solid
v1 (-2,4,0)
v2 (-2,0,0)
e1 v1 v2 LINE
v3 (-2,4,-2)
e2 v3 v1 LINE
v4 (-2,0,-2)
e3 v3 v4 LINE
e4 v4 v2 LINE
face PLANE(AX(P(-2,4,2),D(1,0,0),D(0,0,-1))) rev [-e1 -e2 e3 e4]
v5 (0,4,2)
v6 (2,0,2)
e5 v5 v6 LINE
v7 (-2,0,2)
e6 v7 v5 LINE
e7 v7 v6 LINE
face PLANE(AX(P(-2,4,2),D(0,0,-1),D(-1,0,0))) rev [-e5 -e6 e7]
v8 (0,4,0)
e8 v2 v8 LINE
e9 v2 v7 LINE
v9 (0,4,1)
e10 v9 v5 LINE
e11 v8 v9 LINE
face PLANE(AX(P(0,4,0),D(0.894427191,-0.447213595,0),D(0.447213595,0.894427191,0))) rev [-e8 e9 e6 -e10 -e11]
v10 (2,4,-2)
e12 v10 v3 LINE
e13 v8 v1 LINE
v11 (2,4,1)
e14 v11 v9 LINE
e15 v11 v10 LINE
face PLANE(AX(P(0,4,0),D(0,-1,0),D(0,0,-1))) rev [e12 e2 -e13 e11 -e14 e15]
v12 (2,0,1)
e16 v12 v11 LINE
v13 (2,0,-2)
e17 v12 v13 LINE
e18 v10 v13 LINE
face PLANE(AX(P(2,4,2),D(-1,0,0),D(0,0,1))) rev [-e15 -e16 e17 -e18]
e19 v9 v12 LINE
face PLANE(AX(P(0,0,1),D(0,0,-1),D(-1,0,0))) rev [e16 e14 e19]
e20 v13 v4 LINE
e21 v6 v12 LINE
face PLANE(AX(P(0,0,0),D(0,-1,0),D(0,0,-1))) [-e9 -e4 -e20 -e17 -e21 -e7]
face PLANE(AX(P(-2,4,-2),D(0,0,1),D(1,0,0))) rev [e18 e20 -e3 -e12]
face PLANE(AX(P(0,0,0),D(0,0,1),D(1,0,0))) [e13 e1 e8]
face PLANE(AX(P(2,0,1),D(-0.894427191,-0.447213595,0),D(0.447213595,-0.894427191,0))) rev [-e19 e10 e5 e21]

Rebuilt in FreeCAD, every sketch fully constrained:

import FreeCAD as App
import Part
import Sketcher

V = App.Vector
Q = App.Units.Quantity


def add_polygon(sketch, points):
    """Adds a closed chain of lines whose ends are joined by coincident constraints."""
    first, n = sketch.GeometryCount, len(points)
    for a, b in zip(points, points[1:] + points[:1]):
        sketch.addGeometry(Part.LineSegment(App.Vector(*a, 0), App.Vector(*b, 0)), False)
    for i in range(n):
        sketch.addConstraint(Sketcher.Constraint("Coincident", first + i, 2, first + (i + 1) % n, 1))

doc = App.newDocument("Part")
body = doc.addObject("PartDesign::Body", "Body")

# Sketch on XZ plane
sketch1 = body.newObject("Sketcher::SketchObject", "Sketch")
sketch1.AttachmentSupport = (doc.getObject("XZ_Plane"), [""])
sketch1.MapMode = "FlatFace"
add_polygon(sketch1, [(-2, -2), (-2, 2), (2, 2), (2, -2)])  # lines 0-3
sketch1.addConstraint(Sketcher.Constraint("Vertical", 0))
sketch1.addConstraint(Sketcher.Constraint("Horizontal", 1))
sketch1.addConstraint(Sketcher.Constraint("Vertical", 2))
sketch1.addConstraint(Sketcher.Constraint("Horizontal", 3))
sketch1.addConstraint(Sketcher.Constraint("Symmetric", 0, 2, 2, 2, -1, 1))
sketch1.addConstraint(Sketcher.Constraint("Equal", 3, 0))
sketch1.addConstraint(Sketcher.Constraint("DistanceX", 1, 1, 1, 2, Q("4 mm")))
pad1 = body.newObject("PartDesign::Pad", "Pad")
pad1.Profile = sketch1
pad1.Length = 4
pad1.Reversed = True

# Sketch on XY plane
sketch2 = body.newObject("Sketcher::SketchObject", "Sketch001")
sketch2.AttachmentSupport = (doc.getObject("XY_Plane"), [""])
sketch2.MapMode = "FlatFace"
sketch2.AttachmentOffset = App.Placement(V(0, 0, 2), App.Rotation())
add_polygon(sketch2, [(2, 4), (0, 4), (2, 0)])  # lines 0-2
sketch2.addConstraint(Sketcher.Constraint("Horizontal", 0))
sketch2.addConstraint(Sketcher.Constraint("Vertical", 2))
sketch2.addConstraint(Sketcher.Constraint("PointOnObject", 0, 2, -2))
sketch2.addConstraint(Sketcher.Constraint("PointOnObject", 1, 2, -1))
sketch2.addConstraint(Sketcher.Constraint("DistanceX", 0, 2, 0, 1, Q("2 mm")))
sketch2.addConstraint(Sketcher.Constraint("DistanceY", 2, 1, 2, 2, Q("4 mm")))
pocket1 = body.newObject("PartDesign::Pocket", "Pocket")
pocket1.Profile = sketch2
pocket1.Length = 1

# Sketch on XY plane
sketch3 = body.newObject("Sketcher::SketchObject", "Sketch002")
sketch3.AttachmentSupport = (doc.getObject("XY_Plane"), [""])
sketch3.MapMode = "FlatFace"
sketch3.AttachmentOffset = App.Placement(V(0, 0, 2), App.Rotation())
add_polygon(sketch3, [(-2, 0), (0, 4), (-2, 4)])  # lines 0-2
sketch3.addConstraint(Sketcher.Constraint("Horizontal", 1))
sketch3.addConstraint(Sketcher.Constraint("Vertical", 2))
sketch3.addConstraint(Sketcher.Constraint("PointOnObject", 0, 2, -2))
sketch3.addConstraint(Sketcher.Constraint("PointOnObject", 2, 2, -1))
sketch3.addConstraint(Sketcher.Constraint("DistanceX", 1, 2, 1, 1, Q("2 mm")))
sketch3.addConstraint(Sketcher.Constraint("DistanceY", 2, 2, 2, 1, Q("4 mm")))
pocket2 = body.newObject("PartDesign::Pocket", "Pocket001")
pocket2.Profile = sketch3
pocket2.Length = 2

doc.recompute()
